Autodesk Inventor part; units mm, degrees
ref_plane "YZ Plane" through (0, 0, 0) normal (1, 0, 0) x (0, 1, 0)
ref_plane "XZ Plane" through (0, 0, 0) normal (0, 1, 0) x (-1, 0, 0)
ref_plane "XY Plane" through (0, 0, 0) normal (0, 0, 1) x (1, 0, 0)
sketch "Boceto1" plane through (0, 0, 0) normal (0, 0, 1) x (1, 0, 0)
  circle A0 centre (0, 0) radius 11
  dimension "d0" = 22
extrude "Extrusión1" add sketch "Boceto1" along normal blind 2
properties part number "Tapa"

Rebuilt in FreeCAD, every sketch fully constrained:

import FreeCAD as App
import Part
import Sketcher
from FreeCAD import Vector
Q = App.Units.Quantity

doc = App.newDocument("Part")
body = doc.addObject("PartDesign::Body", "Body")

# Sketch on XY plane
sketch1 = body.newObject("Sketcher::SketchObject", "Sketch")
sketch1.AttachmentSupport = (doc.getObject("XY_Plane"), [""])
sketch1.MapMode = "FlatFace"
sketch1.addGeometry(Part.Circle(Vector(0, 0, 0), Vector(0, 0, 1), 11), False)
sketch1.addConstraint([
    Sketcher.Constraint("Coincident", 0, 3, -1, 1),
    Sketcher.Constraint("Diameter", 0, Q("22 mm")),
])
pad1 = body.newObject("PartDesign::Pad", "Pad")
pad1.Profile = sketch1
pad1.Length = 2

doc.recompute()
